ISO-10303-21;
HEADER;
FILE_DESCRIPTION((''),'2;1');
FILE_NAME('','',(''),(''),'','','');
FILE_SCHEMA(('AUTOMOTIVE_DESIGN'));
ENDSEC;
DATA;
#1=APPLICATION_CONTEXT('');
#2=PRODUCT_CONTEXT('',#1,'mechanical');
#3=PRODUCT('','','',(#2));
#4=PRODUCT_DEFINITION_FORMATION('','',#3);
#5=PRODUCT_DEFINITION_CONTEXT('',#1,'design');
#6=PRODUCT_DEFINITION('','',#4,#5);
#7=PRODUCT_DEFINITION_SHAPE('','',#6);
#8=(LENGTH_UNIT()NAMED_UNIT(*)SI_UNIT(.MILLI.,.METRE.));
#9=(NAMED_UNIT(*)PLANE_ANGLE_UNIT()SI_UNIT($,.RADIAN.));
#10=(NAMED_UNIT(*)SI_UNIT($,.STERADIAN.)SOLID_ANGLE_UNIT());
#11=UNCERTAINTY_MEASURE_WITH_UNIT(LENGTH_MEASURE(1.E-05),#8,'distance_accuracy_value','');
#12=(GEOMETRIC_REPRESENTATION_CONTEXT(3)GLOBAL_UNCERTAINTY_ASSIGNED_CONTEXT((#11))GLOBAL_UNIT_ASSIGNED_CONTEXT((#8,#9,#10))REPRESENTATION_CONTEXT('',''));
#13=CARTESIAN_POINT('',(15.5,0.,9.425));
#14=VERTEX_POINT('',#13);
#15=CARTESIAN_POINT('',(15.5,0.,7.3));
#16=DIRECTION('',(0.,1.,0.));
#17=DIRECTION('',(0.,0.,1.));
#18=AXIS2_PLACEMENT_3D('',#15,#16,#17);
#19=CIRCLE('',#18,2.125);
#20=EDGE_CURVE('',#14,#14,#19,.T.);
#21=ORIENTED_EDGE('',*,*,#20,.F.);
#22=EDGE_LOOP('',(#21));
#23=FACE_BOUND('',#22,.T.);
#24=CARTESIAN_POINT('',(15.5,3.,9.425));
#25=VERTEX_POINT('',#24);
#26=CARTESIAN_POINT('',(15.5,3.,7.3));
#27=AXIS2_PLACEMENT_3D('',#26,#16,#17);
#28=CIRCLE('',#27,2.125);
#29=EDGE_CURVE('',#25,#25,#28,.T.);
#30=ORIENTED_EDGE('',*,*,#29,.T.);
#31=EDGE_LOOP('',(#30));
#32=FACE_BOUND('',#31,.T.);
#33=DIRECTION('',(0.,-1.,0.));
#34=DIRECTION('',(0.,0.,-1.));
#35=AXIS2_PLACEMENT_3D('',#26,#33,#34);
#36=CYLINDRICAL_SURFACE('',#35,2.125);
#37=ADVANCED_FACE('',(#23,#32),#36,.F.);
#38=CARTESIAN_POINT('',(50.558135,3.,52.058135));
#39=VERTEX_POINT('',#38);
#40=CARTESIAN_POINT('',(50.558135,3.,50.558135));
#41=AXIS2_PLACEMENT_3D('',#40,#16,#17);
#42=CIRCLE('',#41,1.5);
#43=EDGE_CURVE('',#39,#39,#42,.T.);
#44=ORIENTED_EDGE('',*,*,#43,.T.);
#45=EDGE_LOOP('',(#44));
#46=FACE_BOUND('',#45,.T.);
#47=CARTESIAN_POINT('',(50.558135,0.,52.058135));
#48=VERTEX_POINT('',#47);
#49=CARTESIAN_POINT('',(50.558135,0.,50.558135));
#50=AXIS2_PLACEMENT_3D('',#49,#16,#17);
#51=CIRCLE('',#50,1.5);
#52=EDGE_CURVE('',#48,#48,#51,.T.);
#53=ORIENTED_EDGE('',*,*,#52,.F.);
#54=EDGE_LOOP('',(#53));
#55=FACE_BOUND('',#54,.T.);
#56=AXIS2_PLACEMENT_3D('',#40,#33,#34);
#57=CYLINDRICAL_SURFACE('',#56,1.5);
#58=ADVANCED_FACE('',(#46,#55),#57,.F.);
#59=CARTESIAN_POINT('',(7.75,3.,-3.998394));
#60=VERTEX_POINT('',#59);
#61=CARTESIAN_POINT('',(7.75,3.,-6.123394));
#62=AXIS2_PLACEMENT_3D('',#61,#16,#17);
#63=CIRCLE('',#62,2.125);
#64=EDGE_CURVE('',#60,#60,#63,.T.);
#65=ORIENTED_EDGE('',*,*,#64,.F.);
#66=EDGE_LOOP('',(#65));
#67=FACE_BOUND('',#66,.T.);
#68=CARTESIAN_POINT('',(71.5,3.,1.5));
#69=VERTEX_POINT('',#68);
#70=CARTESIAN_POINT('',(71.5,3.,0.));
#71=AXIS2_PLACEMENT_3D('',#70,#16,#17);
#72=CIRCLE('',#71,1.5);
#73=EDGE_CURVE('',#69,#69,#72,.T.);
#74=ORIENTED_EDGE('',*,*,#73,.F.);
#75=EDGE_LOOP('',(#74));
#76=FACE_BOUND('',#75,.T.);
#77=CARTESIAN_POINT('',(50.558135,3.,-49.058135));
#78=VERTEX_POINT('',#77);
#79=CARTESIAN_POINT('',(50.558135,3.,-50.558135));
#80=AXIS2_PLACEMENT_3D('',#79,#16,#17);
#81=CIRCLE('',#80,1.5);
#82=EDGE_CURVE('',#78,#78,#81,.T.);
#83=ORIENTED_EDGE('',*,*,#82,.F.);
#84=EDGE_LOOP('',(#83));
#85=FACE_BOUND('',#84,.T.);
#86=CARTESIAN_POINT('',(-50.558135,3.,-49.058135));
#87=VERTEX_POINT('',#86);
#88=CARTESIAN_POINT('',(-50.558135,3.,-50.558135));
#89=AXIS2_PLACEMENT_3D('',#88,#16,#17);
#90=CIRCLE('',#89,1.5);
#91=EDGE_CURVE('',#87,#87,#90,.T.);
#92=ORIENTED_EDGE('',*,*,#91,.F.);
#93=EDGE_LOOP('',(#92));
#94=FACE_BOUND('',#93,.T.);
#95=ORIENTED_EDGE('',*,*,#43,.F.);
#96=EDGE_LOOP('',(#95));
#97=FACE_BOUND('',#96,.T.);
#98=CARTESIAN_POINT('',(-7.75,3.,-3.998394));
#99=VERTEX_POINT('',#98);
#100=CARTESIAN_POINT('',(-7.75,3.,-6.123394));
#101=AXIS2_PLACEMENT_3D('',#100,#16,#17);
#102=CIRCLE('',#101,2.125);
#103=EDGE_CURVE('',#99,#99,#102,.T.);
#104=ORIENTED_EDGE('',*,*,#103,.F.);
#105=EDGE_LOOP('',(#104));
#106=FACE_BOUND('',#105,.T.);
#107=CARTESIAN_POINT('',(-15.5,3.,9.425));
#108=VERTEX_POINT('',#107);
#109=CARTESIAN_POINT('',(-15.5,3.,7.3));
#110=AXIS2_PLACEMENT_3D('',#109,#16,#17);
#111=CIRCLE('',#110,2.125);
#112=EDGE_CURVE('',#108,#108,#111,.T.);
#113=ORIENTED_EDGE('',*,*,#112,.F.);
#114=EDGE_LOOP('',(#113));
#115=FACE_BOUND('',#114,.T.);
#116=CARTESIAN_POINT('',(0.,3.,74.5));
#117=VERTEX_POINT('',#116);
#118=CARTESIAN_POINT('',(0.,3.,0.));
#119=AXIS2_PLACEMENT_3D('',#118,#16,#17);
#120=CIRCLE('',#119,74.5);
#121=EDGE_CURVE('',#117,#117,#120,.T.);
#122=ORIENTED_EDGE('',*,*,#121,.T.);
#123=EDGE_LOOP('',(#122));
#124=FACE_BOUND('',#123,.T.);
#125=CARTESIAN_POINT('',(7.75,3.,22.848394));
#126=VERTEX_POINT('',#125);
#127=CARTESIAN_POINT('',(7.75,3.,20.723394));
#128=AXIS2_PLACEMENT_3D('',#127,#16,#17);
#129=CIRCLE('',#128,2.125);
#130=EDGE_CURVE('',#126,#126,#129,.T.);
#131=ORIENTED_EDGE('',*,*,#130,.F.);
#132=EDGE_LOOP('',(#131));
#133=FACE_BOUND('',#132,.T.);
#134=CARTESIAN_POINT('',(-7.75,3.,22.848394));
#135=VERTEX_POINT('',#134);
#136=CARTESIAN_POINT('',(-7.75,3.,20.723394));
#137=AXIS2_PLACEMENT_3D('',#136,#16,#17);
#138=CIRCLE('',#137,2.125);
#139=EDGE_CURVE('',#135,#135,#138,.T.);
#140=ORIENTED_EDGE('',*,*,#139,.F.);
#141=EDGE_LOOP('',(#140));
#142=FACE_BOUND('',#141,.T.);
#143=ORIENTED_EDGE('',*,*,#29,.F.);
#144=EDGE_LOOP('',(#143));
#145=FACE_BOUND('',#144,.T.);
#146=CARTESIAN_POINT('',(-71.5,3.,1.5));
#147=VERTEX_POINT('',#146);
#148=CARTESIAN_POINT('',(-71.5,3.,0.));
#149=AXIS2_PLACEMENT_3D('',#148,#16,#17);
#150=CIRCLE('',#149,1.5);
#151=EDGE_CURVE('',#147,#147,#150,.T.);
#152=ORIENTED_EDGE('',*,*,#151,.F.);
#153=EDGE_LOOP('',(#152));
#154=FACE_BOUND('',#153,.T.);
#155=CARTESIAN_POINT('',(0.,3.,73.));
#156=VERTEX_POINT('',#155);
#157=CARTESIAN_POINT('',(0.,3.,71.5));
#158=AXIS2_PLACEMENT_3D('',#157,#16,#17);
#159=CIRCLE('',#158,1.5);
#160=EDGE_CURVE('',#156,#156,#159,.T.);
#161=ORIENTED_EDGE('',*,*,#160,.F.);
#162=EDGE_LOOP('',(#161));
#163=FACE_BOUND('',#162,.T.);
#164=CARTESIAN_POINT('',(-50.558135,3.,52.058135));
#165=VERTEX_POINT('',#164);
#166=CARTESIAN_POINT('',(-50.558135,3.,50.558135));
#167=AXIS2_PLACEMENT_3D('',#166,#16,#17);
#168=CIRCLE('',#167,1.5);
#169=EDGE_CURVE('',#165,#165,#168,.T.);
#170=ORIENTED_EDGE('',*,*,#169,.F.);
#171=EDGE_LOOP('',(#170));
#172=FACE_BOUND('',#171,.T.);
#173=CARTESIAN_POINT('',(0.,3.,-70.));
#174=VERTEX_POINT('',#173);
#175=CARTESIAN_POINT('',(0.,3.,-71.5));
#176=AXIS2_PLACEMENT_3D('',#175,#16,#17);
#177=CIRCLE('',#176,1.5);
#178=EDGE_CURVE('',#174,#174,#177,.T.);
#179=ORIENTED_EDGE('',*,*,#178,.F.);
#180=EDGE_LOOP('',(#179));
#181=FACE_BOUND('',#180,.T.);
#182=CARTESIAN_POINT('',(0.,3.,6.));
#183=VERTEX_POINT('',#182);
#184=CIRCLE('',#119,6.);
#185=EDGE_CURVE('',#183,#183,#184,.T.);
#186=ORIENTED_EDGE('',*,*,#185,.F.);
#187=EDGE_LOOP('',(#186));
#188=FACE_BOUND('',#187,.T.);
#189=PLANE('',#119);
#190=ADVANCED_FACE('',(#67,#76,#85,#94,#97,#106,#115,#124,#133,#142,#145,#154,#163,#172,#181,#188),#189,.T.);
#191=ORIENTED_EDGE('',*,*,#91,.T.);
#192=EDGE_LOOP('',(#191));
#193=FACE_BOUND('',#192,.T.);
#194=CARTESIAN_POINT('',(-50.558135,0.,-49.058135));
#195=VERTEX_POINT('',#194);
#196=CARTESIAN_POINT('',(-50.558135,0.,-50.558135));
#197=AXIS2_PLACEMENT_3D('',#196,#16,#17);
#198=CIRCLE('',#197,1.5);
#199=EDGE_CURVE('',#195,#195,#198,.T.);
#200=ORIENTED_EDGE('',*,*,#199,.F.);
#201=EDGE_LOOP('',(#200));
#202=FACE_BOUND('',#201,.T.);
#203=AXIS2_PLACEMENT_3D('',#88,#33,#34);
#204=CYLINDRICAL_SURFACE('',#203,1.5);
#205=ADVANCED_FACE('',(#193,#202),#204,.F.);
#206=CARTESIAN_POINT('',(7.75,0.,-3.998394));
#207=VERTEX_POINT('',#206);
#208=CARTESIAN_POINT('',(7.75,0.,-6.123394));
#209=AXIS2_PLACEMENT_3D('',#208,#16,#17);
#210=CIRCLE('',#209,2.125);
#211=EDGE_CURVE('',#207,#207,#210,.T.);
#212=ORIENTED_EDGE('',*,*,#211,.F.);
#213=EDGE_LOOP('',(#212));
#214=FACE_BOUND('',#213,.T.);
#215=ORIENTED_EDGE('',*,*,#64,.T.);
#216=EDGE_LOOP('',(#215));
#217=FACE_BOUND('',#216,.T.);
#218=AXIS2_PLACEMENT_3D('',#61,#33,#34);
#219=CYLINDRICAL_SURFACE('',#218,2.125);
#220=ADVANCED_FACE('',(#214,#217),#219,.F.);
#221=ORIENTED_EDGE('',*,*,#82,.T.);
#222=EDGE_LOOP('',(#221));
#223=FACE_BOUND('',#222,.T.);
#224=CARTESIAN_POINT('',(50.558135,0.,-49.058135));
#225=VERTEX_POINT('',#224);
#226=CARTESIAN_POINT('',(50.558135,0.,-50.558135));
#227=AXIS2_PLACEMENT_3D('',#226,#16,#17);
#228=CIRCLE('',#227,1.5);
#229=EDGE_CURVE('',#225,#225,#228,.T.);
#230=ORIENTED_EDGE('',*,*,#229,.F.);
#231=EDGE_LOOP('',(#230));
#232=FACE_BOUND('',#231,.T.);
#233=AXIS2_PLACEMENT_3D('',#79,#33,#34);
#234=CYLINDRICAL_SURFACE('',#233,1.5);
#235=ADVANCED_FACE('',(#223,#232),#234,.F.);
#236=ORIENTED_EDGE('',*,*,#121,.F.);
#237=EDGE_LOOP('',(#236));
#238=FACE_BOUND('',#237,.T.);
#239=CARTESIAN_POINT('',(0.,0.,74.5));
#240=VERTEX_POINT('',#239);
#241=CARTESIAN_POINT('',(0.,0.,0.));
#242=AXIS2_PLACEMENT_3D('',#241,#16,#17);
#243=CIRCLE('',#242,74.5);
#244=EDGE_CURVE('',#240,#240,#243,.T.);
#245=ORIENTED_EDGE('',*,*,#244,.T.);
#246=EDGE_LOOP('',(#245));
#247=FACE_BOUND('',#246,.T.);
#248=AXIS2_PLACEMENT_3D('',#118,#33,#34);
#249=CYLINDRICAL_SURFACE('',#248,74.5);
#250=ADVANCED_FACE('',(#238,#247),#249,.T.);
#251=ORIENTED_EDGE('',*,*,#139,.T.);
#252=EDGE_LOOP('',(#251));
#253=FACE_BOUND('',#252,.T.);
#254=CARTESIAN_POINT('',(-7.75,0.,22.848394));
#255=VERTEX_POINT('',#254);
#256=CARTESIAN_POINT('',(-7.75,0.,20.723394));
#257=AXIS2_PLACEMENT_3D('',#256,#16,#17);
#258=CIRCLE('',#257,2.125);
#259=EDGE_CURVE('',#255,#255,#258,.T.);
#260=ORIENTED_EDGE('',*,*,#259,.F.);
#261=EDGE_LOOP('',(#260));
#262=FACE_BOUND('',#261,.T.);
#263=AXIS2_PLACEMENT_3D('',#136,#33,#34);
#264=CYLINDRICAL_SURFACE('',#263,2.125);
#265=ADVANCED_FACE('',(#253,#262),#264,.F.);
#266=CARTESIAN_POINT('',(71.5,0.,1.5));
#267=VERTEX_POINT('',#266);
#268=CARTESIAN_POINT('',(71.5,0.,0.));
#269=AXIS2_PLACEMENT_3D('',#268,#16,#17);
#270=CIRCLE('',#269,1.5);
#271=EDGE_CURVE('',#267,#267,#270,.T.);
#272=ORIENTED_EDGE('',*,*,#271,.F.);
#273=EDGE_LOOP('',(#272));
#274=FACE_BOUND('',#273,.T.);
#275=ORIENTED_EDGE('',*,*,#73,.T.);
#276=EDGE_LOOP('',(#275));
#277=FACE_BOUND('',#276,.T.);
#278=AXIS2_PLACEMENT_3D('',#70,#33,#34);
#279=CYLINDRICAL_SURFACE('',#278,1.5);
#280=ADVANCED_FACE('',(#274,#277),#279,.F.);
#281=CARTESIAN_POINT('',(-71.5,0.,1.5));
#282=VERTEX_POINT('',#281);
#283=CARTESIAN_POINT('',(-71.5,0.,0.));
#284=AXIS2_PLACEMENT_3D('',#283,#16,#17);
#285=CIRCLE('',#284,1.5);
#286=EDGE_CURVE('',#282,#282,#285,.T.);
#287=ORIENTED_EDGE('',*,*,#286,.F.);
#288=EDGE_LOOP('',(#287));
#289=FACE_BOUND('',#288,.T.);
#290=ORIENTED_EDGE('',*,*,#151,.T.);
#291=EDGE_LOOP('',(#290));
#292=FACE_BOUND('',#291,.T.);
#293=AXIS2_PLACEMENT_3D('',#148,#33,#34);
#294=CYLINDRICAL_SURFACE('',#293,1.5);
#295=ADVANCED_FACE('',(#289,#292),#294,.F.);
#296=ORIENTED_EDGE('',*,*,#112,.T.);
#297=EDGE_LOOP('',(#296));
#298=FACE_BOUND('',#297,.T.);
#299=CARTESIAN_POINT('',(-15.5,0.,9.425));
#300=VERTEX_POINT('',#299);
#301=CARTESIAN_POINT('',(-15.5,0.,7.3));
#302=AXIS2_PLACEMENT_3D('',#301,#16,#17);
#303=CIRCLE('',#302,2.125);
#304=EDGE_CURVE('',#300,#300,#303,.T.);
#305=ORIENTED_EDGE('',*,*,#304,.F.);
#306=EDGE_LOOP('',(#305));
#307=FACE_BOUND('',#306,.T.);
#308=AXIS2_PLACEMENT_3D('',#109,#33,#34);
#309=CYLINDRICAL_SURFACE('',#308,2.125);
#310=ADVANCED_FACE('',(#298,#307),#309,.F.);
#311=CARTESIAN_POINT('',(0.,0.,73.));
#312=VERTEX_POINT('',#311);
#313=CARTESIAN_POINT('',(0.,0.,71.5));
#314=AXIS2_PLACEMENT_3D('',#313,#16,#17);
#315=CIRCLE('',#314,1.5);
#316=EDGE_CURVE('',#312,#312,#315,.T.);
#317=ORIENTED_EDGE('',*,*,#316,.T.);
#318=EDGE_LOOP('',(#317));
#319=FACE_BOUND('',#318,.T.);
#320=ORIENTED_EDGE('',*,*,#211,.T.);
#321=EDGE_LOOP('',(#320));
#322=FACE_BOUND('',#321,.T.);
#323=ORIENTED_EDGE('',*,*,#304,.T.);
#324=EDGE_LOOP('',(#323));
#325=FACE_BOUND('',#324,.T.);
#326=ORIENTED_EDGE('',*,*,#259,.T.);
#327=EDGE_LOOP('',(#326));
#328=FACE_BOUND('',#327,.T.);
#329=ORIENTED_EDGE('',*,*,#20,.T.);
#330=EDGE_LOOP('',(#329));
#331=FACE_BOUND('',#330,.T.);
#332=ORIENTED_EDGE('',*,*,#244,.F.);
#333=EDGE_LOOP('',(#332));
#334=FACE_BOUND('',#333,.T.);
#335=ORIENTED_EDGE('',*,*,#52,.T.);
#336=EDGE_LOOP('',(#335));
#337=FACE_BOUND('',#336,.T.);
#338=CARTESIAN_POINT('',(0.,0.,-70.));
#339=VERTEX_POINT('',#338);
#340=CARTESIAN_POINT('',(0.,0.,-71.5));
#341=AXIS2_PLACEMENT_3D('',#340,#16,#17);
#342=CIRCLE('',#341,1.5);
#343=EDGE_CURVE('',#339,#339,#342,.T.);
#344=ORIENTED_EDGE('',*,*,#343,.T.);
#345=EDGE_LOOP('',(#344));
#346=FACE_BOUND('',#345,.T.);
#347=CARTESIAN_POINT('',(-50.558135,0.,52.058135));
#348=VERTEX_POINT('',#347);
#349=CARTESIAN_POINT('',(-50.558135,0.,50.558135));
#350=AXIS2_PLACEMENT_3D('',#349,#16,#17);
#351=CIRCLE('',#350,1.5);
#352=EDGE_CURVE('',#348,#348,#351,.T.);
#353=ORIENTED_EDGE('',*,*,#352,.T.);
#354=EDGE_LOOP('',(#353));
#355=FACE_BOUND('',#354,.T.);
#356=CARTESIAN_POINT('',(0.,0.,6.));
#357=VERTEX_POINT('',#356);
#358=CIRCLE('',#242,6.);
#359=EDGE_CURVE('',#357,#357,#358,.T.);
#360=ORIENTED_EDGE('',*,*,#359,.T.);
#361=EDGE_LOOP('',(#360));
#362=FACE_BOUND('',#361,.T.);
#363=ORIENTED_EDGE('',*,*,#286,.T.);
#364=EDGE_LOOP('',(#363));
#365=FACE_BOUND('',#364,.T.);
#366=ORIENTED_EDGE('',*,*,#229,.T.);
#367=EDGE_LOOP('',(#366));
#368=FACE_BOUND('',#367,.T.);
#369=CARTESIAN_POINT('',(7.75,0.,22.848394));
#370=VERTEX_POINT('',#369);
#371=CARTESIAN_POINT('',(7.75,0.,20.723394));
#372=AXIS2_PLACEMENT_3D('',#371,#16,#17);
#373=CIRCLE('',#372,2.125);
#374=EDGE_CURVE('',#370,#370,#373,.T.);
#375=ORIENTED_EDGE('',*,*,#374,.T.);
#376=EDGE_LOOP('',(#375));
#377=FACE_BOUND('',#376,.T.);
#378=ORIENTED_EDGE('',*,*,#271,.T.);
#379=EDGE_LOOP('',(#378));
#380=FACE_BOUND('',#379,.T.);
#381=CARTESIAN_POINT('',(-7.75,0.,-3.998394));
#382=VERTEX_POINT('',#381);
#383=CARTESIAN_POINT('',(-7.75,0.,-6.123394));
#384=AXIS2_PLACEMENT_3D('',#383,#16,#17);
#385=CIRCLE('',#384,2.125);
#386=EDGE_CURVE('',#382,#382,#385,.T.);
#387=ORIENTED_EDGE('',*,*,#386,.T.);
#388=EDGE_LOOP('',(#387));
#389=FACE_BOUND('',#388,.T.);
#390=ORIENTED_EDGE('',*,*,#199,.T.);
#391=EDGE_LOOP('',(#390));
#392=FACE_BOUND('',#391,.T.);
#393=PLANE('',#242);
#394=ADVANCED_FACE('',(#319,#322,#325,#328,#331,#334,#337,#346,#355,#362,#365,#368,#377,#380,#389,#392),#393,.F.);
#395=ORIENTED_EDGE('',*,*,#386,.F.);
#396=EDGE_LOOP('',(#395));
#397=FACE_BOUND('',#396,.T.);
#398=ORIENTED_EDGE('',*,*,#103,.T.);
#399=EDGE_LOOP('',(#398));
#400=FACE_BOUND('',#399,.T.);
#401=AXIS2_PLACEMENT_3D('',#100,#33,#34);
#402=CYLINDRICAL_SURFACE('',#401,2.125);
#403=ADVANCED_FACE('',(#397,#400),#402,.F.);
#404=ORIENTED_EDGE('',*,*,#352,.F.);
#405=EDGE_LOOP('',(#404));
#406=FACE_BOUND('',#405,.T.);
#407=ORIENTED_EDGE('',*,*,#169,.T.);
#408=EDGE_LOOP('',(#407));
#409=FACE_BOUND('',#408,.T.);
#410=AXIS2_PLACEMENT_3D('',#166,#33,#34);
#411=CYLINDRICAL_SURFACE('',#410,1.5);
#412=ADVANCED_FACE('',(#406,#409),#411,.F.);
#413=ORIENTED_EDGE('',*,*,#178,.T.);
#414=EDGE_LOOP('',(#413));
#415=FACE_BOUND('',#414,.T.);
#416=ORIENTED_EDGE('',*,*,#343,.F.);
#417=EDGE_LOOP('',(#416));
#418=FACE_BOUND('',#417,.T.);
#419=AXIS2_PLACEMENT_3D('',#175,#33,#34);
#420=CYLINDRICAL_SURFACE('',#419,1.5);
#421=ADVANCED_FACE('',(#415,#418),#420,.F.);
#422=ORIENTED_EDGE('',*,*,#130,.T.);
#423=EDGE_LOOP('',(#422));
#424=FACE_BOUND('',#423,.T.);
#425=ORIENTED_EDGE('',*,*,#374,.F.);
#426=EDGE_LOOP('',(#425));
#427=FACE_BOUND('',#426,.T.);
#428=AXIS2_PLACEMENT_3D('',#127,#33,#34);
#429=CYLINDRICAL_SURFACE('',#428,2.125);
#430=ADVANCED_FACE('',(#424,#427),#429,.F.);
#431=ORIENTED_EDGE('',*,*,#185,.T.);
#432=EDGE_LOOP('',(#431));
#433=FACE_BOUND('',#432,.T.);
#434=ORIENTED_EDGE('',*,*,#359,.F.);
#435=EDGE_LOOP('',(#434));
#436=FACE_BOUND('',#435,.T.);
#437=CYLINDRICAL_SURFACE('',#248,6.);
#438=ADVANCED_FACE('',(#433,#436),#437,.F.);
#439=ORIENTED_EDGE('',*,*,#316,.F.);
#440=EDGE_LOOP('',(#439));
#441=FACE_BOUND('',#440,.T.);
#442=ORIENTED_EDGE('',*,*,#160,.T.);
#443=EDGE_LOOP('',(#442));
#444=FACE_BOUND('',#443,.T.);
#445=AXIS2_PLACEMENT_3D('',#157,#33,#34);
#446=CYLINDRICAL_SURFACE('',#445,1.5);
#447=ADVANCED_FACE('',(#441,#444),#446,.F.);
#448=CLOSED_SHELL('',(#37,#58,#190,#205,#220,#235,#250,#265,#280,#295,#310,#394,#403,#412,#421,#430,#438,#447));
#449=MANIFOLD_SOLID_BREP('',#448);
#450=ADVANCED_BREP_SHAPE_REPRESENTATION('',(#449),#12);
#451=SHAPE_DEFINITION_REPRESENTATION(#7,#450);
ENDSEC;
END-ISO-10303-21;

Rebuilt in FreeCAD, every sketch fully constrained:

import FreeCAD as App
import Part
import Sketcher

V = App.Vector

doc = App.newDocument("Part")
body = doc.addObject("PartDesign::Body", "Body")

# Sketch on XZ plane
sketch1 = doc.addObject("Sketcher::SketchObject", "Sketch")
body.addObject(sketch1)
sketch1.AttachmentSupport = (doc.XZ_Plane, [""])
sketch1.MapMode = "FlatFace"
sketch1.addGeometry([
    Part.Circle(V(0, 0, 0), V(0, 0, 1), 74.5),  # 0
    Part.Circle(V(-50.6, -50.6, 0), V(0, 0, 1), 1.5),  # 1
    Part.Circle(V(0, -71.5, 0), V(0, 0, 1), 1.5),  # 2
    Part.Circle(V(-7.8, -6.1, 0), V(0, 0, 1), 2.1),  # 3
    Part.Circle(V(-71.5, 0, 0), V(0, 0, 1), 1.5),  # 4
    Part.Circle(V(-50.6, 50.6, 0), V(0, 0, 1), 1.5),  # 5
    Part.Circle(V(-15.5, 7.3, 0), V(0, 0, 1), 2.1),  # 6
    Part.Circle(V(-7.8, 20.7, 0), V(0, 0, 1), 2.1),  # 7
    Part.Circle(V(7.8, -6.1, 0), V(0, 0, 1), 2.1),  # 8
    Part.Circle(V(50.6, -50.6, 0), V(0, 0, 1), 1.5),  # 9
    Part.Circle(V(71.5, 0, 0), V(0, 0, 1), 1.5),  # 10
    Part.Circle(V(0, 0, 0), V(0, 0, 1), 6),  # 11
    Part.Circle(V(15.5, 7.3, 0), V(0, 0, 1), 2.1),  # 12
    Part.Circle(V(7.8, 20.7, 0), V(0, 0, 1), 2.1),  # 13
    Part.Circle(V(0, 71.5, 0), V(0, 0, 1), 1.5),  # 14
    Part.Circle(V(50.6, 50.6, 0), V(0, 0, 1), 1.5),  # 15
], False)
sketch1.addConstraint([
    Sketcher.Constraint("Coincident", 0, 3, -1, 1),
    Sketcher.Constraint("Coincident", 11, 3, -1, 1),
    Sketcher.Constraint("Equal", 1, 2),
    Sketcher.Constraint("Equal", 2, 4),
    Sketcher.Constraint("Equal", 4, 5),
    Sketcher.Constraint("Equal", 3, 6),
    Sketcher.Constraint("Equal", 6, 7),
    Sketcher.Constraint("Equal", 7, 8),
    Sketcher.Constraint("Equal", 5, 9),
    Sketcher.Constraint("Equal", 9, 10),
    Sketcher.Constraint("Equal", 8, 12),
    Sketcher.Constraint("Equal", 12, 13),
    Sketcher.Constraint("Equal", 10, 14),
    Sketcher.Constraint("Equal", 14, 15),
    Sketcher.Constraint("Symmetric", 5, 3, 9, 3, -1, 1),
    Sketcher.Constraint("Symmetric", 4, 3, 10, 3, -1, 1),
    Sketcher.Constraint("Symmetric", 2, 3, 14, 3, -1, 1),
    Sketcher.Constraint("Symmetric", 1, 3, 15, 3, -1, 1),
    Sketcher.Constraint("Symmetric", 3, 3, 8, 3, -2),
    Sketcher.Constraint("Symmetric", 1, 3, 9, 3, -2),
    Sketcher.Constraint("Symmetric", 6, 3, 12, 3, -2),
    Sketcher.Constraint("Symmetric", 7, 3, 13, 3, -2),
    Sketcher.Constraint("PointOnObject", 2, 3, -2),
    Sketcher.Constraint("PointOnObject", 4, 3, -1),
    Sketcher.Constraint("Vertical", 3, 3, 7, 3),
    Sketcher.Constraint("Diameter", 0, 149.0),
    Sketcher.Constraint("Diameter", 1, 3.0),
    Sketcher.Constraint("Diameter", 11, 12.0),
    Sketcher.Constraint("Diameter", 3, 4.25),
    Sketcher.Constraint("DistanceX", 4, 3, 6, 3, 56.0),
    Sketcher.Constraint("DistanceY", 2, 3, -1, 1, 71.5),
    Sketcher.Constraint("DistanceX", 4, 3, -1, 1, 71.5),
    Sketcher.Constraint("DistanceY", -1, 1, 6, 3, 7.3),
    Sketcher.Constraint("DistanceX", 3, 3, 8, 3, 15.5),
    Sketcher.Constraint("DistanceY", 1, 3, 3, 3, 44.434741),
    Sketcher.Constraint("DistanceY", 3, 3, 5, 3, 56.681529),
    Sketcher.Constraint("DistanceY", 7, 3, 5, 3, 29.834741),
    Sketcher.Constraint("DistanceX", 1, 3, -1, 1, 50.558135),
])
pad1 = doc.addObject("PartDesign::Pad", "Pad")
body.addObject(pad1)
pad1.Profile = sketch1
pad1.Length = 3
pad1.Reversed = True

doc.recompute()
